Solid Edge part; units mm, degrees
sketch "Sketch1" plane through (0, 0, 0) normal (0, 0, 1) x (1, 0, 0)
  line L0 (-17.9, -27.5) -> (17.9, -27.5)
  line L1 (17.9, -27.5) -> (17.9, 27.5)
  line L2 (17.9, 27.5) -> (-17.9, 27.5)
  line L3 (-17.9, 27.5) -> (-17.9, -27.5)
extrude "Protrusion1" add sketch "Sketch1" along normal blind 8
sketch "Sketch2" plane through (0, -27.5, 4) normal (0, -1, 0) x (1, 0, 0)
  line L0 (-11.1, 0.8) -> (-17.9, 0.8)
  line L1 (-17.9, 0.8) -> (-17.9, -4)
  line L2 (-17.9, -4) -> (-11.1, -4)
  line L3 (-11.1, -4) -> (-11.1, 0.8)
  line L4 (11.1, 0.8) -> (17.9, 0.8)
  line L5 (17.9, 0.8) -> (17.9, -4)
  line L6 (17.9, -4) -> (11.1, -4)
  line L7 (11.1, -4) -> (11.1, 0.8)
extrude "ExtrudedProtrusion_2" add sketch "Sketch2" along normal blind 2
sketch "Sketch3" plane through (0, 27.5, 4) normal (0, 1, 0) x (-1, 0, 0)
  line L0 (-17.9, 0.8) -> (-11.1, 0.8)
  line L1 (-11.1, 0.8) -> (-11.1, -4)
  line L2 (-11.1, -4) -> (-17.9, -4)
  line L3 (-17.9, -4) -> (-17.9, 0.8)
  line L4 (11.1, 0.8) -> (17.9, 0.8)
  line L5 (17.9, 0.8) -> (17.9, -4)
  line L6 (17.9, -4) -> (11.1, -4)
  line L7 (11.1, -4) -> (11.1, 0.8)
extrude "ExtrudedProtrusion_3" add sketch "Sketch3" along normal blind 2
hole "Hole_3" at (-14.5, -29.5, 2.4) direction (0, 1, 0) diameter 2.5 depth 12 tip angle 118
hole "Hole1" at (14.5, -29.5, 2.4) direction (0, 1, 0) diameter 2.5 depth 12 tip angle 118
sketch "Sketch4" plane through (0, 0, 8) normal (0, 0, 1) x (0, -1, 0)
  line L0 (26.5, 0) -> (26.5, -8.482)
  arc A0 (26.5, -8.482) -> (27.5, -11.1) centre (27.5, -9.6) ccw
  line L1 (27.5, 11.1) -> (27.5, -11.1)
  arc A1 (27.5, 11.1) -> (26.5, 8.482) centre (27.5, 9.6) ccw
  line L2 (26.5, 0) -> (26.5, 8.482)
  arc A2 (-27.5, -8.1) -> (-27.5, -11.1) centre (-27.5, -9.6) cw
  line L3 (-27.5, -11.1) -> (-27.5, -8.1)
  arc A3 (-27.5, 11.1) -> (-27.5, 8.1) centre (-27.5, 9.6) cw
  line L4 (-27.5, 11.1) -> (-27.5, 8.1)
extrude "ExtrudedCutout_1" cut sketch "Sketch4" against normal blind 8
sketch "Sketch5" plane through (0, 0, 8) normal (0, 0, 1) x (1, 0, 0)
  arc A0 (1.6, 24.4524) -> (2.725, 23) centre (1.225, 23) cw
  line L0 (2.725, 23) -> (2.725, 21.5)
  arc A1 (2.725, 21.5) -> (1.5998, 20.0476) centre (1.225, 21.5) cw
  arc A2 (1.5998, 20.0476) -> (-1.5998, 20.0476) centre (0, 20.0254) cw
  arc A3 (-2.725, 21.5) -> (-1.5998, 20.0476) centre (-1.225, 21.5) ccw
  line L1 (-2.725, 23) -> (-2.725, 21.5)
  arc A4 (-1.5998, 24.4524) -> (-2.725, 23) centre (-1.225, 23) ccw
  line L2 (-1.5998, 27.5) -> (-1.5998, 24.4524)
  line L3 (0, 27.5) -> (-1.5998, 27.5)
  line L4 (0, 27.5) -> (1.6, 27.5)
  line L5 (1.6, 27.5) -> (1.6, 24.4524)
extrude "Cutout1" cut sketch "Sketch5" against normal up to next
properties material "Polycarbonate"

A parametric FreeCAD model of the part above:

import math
import FreeCAD as App
import Part
import Sketcher
from FreeCAD import Vector
Q = App.Units.Quantity

doc = App.newDocument("Part")
body = doc.addObject("PartDesign::Body", "Body")

# Sketch on XY plane
sketch1 = body.newObject("Sketcher::SketchObject", "Sketch")
sketch1.AttachmentSupport = (doc.getObject("XY_Plane"), [""])
sketch1.MapMode = "FlatFace"
sketch1.addGeometry(Part.LineSegment(Vector(-17.9, 27.5, 0), Vector(-17.9, -27.5, 0)), False)
sketch1.addGeometry(Part.LineSegment(Vector(-17.9, -27.5, 0), Vector(17.9, -27.5, 0)), False)
sketch1.addGeometry(Part.LineSegment(Vector(17.9, -27.5, 0), Vector(17.9, 27.5, 0)), False)
sketch1.addGeometry(Part.LineSegment(Vector(17.9, 27.5, 0), Vector(-17.9, 27.5, 0)), False)
sketch1.addConstraint(Sketcher.Constraint("Coincident", 0, 2, 1, 1))
sketch1.addConstraint(Sketcher.Constraint("Coincident", 1, 2, 2, 1))
sketch1.addConstraint(Sketcher.Constraint("Coincident", 2, 2, 3, 1))
sketch1.addConstraint(Sketcher.Constraint("Coincident", 3, 2, 0, 1))
sketch1.addConstraint(Sketcher.Constraint("Vertical", 0))
sketch1.addConstraint(Sketcher.Constraint("Horizontal", 1))
sketch1.addConstraint(Sketcher.Constraint("Vertical", 2))
sketch1.addConstraint(Sketcher.Constraint("Horizontal", 3))
sketch1.addConstraint(Sketcher.Constraint("Symmetric", 0, 2, 2, 2, -1, 1))
sketch1.addConstraint(Sketcher.Constraint("DistanceY", 0, 2, 0, 1, Q("55 mm")))
sketch1.addConstraint(Sketcher.Constraint("DistanceX", 1, 1, 1, 2, Q("35.8 mm")))
pad1 = body.newObject("PartDesign::Pad", "Pad")
pad1.Profile = sketch1
pad1.Length = 8

# Sketch on XZ plane
sketch2 = body.newObject("Sketcher::SketchObject", "Sketch001")
sketch2.AttachmentSupport = (doc.getObject("XZ_Plane"), [""])
sketch2.MapMode = "FlatFace"
sketch2.AttachmentOffset = App.Placement(Vector(0, 0, 27.5), App.Rotation())
sketch2.addGeometry(Part.LineSegment(Vector(-11.1, 0, 0), Vector(-11.1, 4.8, 0)), False)
sketch2.addGeometry(Part.LineSegment(Vector(-11.1, 4.8, 0), Vector(-17.9, 4.8, 0)), False)
sketch2.addGeometry(Part.LineSegment(Vector(-17.9, 4.8, 0), Vector(-17.9, 0, 0)), False)
sketch2.addGeometry(Part.LineSegment(Vector(-17.9, 0, 0), Vector(-11.1, 0, 0)), False)
sketch2.addGeometry(Part.LineSegment(Vector(17.9, 4.8, 0), Vector(11.1, 4.8, 0)), False)
sketch2.addGeometry(Part.LineSegment(Vector(11.1, 4.8, 0), Vector(11.1, 0, 0)), False)
sketch2.addGeometry(Part.LineSegment(Vector(11.1, 0, 0), Vector(17.9, 0, 0)), False)
sketch2.addGeometry(Part.LineSegment(Vector(17.9, 0, 0), Vector(17.9, 4.8, 0)), False)
sketch2.addConstraint(Sketcher.Constraint("Coincident", 0, 2, 1, 1))
sketch2.addConstraint(Sketcher.Constraint("Coincident", 1, 2, 2, 1))
sketch2.addConstraint(Sketcher.Constraint("Coincident", 2, 2, 3, 1))
sketch2.addConstraint(Sketcher.Constraint("Coincident", 3, 2, 0, 1))
sketch2.addConstraint(Sketcher.Constraint("Coincident", 4, 2, 5, 1))
sketch2.addConstraint(Sketcher.Constraint("Coincident", 5, 2, 6, 1))
sketch2.addConstraint(Sketcher.Constraint("Coincident", 6, 2, 7, 1))
sketch2.addConstraint(Sketcher.Constraint("Coincident", 7, 2, 4, 1))
sketch2.addConstraint(Sketcher.Constraint("Vertical", 0))
sketch2.addConstraint(Sketcher.Constraint("Horizontal", 1))
sketch2.addConstraint(Sketcher.Constraint("Vertical", 2))
sketch2.addConstraint(Sketcher.Constraint("Horizontal", 3))
sketch2.addConstraint(Sketcher.Constraint("Horizontal", 4))
sketch2.addConstraint(Sketcher.Constraint("Vertical", 5))
sketch2.addConstraint(Sketcher.Constraint("Horizontal", 6))
sketch2.addConstraint(Sketcher.Constraint("Vertical", 7))
sketch2.addConstraint(Sketcher.Constraint("Symmetric", 3, 2, 5, 2, -1, 1))
sketch2.addConstraint(Sketcher.Constraint("Symmetric", 2, 2, 6, 2, -2))
sketch2.addConstraint(Sketcher.Constraint("Horizontal", 1, 2, 4, 2))
sketch2.addConstraint(Sketcher.Constraint("DistanceX", 1, 2, 1, 1, Q("6.8 mm")))
sketch2.addConstraint(Sketcher.Constraint("DistanceY", 0, 1, 0, 2, Q("4.8 mm")))
sketch2.addConstraint(Sketcher.Constraint("DistanceX", 1, 2, 4, 2, Q("29 mm")))
pad2 = body.newObject("PartDesign::Pad", "Pad001")
pad2.Profile = sketch2
pad2.Length = 2

# Sketch on XZ plane
sketch3 = body.newObject("Sketcher::SketchObject", "Sketch002")
sketch3.AttachmentSupport = (doc.getObject("XZ_Plane"), [""])
sketch3.MapMode = "FlatFace"
sketch3.AttachmentOffset = App.Placement(Vector(0, 0, -27.5), App.Rotation())
sketch3.addGeometry(Part.LineSegment(Vector(11.1, 4.8, 0), Vector(17.9, 4.8, 0)), False)
sketch3.addGeometry(Part.LineSegment(Vector(17.9, 4.8, 0), Vector(17.9, 0, 0)), False)
sketch3.addGeometry(Part.LineSegment(Vector(17.9, 0, 0), Vector(11.1, 0, 0)), False)
sketch3.addGeometry(Part.LineSegment(Vector(11.1, 0, 0), Vector(11.1, 4.8, 0)), False)
sketch3.addGeometry(Part.LineSegment(Vector(-17.9, 4.8, 0), Vector(-11.1, 4.8, 0)), False)
sketch3.addGeometry(Part.LineSegment(Vector(-11.1, 4.8, 0), Vector(-11.1, 0, 0)), False)
sketch3.addGeometry(Part.LineSegment(Vector(-11.1, 0, 0), Vector(-17.9, 0, 0)), False)
sketch3.addGeometry(Part.LineSegment(Vector(-17.9, 0, 0), Vector(-17.9, 4.8, 0)), False)
sketch3.addConstraint(Sketcher.Constraint("Coincident", 0, 2, 1, 1))
sketch3.addConstraint(Sketcher.Constraint("Coincident", 1, 2, 2, 1))
sketch3.addConstraint(Sketcher.Constraint("Coincident", 2, 2, 3, 1))
sketch3.addConstraint(Sketcher.Constraint("Coincident", 3, 2, 0, 1))
sketch3.addConstraint(Sketcher.Constraint("Coincident", 4, 2, 5, 1))
sketch3.addConstraint(Sketcher.Constraint("Coincident", 5, 2, 6, 1))
sketch3.addConstraint(Sketcher.Constraint("Coincident", 6, 2, 7, 1))
sketch3.addConstraint(Sketcher.Constraint("Coincident", 7, 2, 4, 1))
sketch3.addConstraint(Sketcher.Constraint("Horizontal", 0))
sketch3.addConstraint(Sketcher.Constraint("Vertical", 1))
sketch3.addConstraint(Sketcher.Constraint("Horizontal", 2))
sketch3.addConstraint(Sketcher.Constraint("Vertical", 3))
sketch3.addConstraint(Sketcher.Constraint("Horizontal", 4))
sketch3.addConstraint(Sketcher.Constraint("Vertical", 5))
sketch3.addConstraint(Sketcher.Constraint("Horizontal", 6))
sketch3.addConstraint(Sketcher.Constraint("Vertical", 7))
sketch3.addConstraint(Sketcher.Constraint("Symmetric", 2, 2, 5, 2, -1, 1))
sketch3.addConstraint(Sketcher.Constraint("Symmetric", 1, 2, 6, 2, -2))
sketch3.addConstraint(Sketcher.Constraint("Horizontal", 3, 2, 4, 2))
sketch3.addConstraint(Sketcher.Constraint("DistanceX", 0, 1, 0, 2, Q("6.8 mm")))
sketch3.addConstraint(Sketcher.Constraint("DistanceY", 1, 2, 1, 1, Q("4.8 mm")))
sketch3.addConstraint(Sketcher.Constraint("DistanceX", 4, 2, 0, 2, Q("29 mm")))
pad3 = body.newObject("PartDesign::Pad", "Pad002")
pad3.Profile = sketch3
pad3.Length = 2
pad3.Reversed = True

# Sketch on XZ plane
sketch4 = body.newObject("Sketcher::SketchObject", "Sketch003")
sketch4.AttachmentSupport = (doc.getObject("XZ_Plane"), [""])
sketch4.MapMode = "FlatFace"
sketch4.AttachmentOffset = App.Placement(Vector(0, 0, 29.5), App.Rotation())
sketch4.addGeometry(Part.Circle(Vector(-14.5, 2.4, 0), Vector(0, 0, 1), 1.25), False)
sketch4.addConstraint(Sketcher.Constraint("Diameter", 0, Q("2.5 mm")))
sketch4.addConstraint(Sketcher.Constraint("DistanceX", 0, 3, -1, 1, Q("14.5 mm")))
sketch4.addConstraint(Sketcher.Constraint("DistanceY", -1, 1, 0, 3, Q("2.4 mm")))
doc.recompute()
hole = body.newObject("PartDesign::Hole", "Hole")
hole.Profile = sketch4
hole.ThreadType = "None"
hole.Diameter = 2.5
hole.DepthType = "Dimension"
hole.Depth = 12
hole.DrillPoint = "Angled"
hole.DrillPointAngle = 118

# Sketch on XZ plane
sketch5 = body.newObject("Sketcher::SketchObject", "Sketch004")
sketch5.AttachmentSupport = (doc.getObject("XZ_Plane"), [""])
sketch5.MapMode = "FlatFace"
sketch5.AttachmentOffset = App.Placement(Vector(0, 0, 29.5), App.Rotation())
sketch5.addGeometry(Part.Circle(Vector(14.5, 2.4, 0), Vector(0, 0, 1), 1.25), False)
sketch5.addConstraint(Sketcher.Constraint("Diameter", 0, Q("2.5 mm")))
sketch5.addConstraint(Sketcher.Constraint("DistanceX", -1, 1, 0, 3, Q("14.5 mm")))
sketch5.addConstraint(Sketcher.Constraint("DistanceY", -1, 1, 0, 3, Q("2.4 mm")))
doc.recompute()
hole2 = body.newObject("PartDesign::Hole", "Hole001")
hole2.Profile = sketch5
hole2.ThreadType = "None"
hole2.Diameter = 2.5
hole2.DepthType = "Dimension"
hole2.Depth = 12
hole2.DrillPoint = "Angled"
hole2.DrillPointAngle = 118

# Sketch on XY plane
sketch6 = body.newObject("Sketcher::SketchObject", "Sketch005")
sketch6.AttachmentSupport = (doc.getObject("XY_Plane"), [""])
sketch6.MapMode = "FlatFace"
sketch6.AttachmentOffset = App.Placement(Vector(0, 0, 8), App.Rotation())
sketch6.addGeometry(Part.LineSegment(Vector(8.482, -26.5, 0), Vector(-8.482, -26.5, 0)), False)
sketch6.addGeometry(Part.ArcOfCircle(Part.Circle(Vector(-9.6, -27.5, 0), Vector(0, 0, 1), 1.499975), math.radians(41.81118), math.radians(180)), False)
sketch6.addGeometry(Part.LineSegment(Vector(-11.1, -27.5, 0), Vector(11.1, -27.5, 0)), False)
sketch6.addGeometry(Part.ArcOfCircle(Part.Circle(Vector(9.6, -27.5, 0), Vector(0, 0, 1), 1.5), math.radians(0), math.radians(138.18882)), False)
sketch6.addGeometry(Part.ArcOfCircle(Part.Circle(Vector(-9.6, 27.5, 0), Vector(0, 0, 1), 1.5), math.radians(180), math.radians(360)), False)
sketch6.addGeometry(Part.LineSegment(Vector(-8.1, 27.5, 0), Vector(-11.1, 27.5, 0)), False)
sketch6.addGeometry(Part.ArcOfCircle(Part.Circle(Vector(9.6, 27.5, 0), Vector(0, 0, 1), 1.5), math.radians(180), math.radians(360)), False)
sketch6.addGeometry(Part.LineSegment(Vector(11.1, 27.5, 0), Vector(8.1, 27.5, 0)), False)
sketch6.addConstraint(Sketcher.Constraint("Coincident", 0, 2, 1, 1))
sketch6.addConstraint(Sketcher.Constraint("Coincident", 1, 2, 2, 1))
sketch6.addConstraint(Sketcher.Constraint("Coincident", 2, 2, 3, 1))
sketch6.addConstraint(Sketcher.Constraint("Coincident", 3, 2, 0, 1))
sketch6.addConstraint(Sketcher.Constraint("Coincident", 4, 1, 5, 2))
sketch6.addConstraint(Sketcher.Constraint("Coincident", 5, 1, 4, 2))
sketch6.addConstraint(Sketcher.Constraint("Coincident", 6, 1, 7, 2))
sketch6.addConstraint(Sketcher.Constraint("Coincident", 7, 1, 6, 2))
sketch6.addConstraint(Sketcher.Constraint("Horizontal", 0))
sketch6.addConstraint(Sketcher.Constraint("Horizontal", 2))
sketch6.addConstraint(Sketcher.Constraint("Horizontal", 5))
sketch6.addConstraint(Sketcher.Constraint("Horizontal", 7))
sketch6.addConstraint(Sketcher.Constraint("Equal", 1, 3))
sketch6.addConstraint(Sketcher.Constraint("Equal", 3, 4))
sketch6.addConstraint(Sketcher.Constraint("Equal", 4, 6))
sketch6.addConstraint(Sketcher.Constraint("Symmetric", 3, 3, 4, 3, -1, 1))
sketch6.addConstraint(Sketcher.Constraint("Symmetric", 1, 3, 6, 3, -1, 1))
sketch6.addConstraint(Sketcher.Constraint("Symmetric", 1, 3, 3, 3, -2))
sketch6.addConstraint(Sketcher.Constraint("Horizontal", 3, 3, 1, 2))
sketch6.addConstraint(Sketcher.Constraint("Horizontal", 6, 3, 4, 1))
sketch6.addConstraint(Sketcher.Constraint("Horizontal", 5, 1, 6, 1))
sketch6.addConstraint(Sketcher.Constraint("Radius", 1, Q("1.5 mm")))
sketch6.addConstraint(Sketcher.Constraint("DistanceX", 2, 1, 2, 2, Q("22.2 mm")))
sketch6.addConstraint(Sketcher.Constraint("DistanceY", 1, 3, 4, 3, Q("55 mm")))
sketch6.addConstraint(Sketcher.Constraint("DistanceY", 1, 3, 0, 2, Q("1 mm")))
pocket1 = body.newObject("PartDesign::Pocket", "Pocket")
pocket1.Profile = sketch6
pocket1.Length = 8

# Sketch on XY plane
sketch7 = body.newObject("Sketcher::SketchObject", "Sketch006")
sketch7.AttachmentSupport = (doc.getObject("XY_Plane"), [""])
sketch7.MapMode = "FlatFace"
sketch7.AttachmentOffset = App.Placement(Vector(0, 0, 8), App.Rotation())
sketch7.addGeometry(Part.ArcOfCircle(Part.Circle(Vector(1.225, 23, 0), Vector(0, 0, 1), 1.50003), math.radians(0), math.radians(75.522786)), False)
sketch7.addGeometry(Part.LineSegment(Vector(1.6, 24.4524, 0), Vector(1.6, 27.5, 0)), False)
sketch7.addGeometry(Part.LineSegment(Vector(1.6, 27.5, 0), Vector(-1.5998, 27.5, 0)), False)
sketch7.addGeometry(Part.LineSegment(Vector(-1.5998, 27.5, 0), Vector(-1.5998, 24.4524, 0)), False)
sketch7.addGeometry(Part.ArcOfCircle(Part.Circle(Vector(-1.225, 23, 0), Vector(0, 0, 1), 1.49998), math.radians(104.469817), math.radians(180)), False)
sketch7.addGeometry(Part.LineSegment(Vector(-2.725, 23, 0), Vector(-2.725, 21.5, 0)), False)
sketch7.addGeometry(Part.ArcOfCircle(Part.Circle(Vector(-1.225, 21.5, 0), Vector(0, 0, 1), 1.5), math.radians(180), math.radians(255.530183)), False)
sketch7.addGeometry(Part.ArcOfCircle(Part.Circle(Vector(0, 20.0254, 0), Vector(0, 0, 1), 1.599954), math.radians(179.204973), math.radians(360.795027)), False)
sketch7.addGeometry(Part.ArcOfCircle(Part.Circle(Vector(1.225, 21.5, 0), Vector(0, 0, 1), 1.5), math.radians(-75.530183), math.radians(0)), False)
sketch7.addGeometry(Part.LineSegment(Vector(2.725, 21.5, 0), Vector(2.725, 23, 0)), False)
sketch7.addConstraint(Sketcher.Constraint("Coincident", 0, 2, 1, 1))
sketch7.addConstraint(Sketcher.Constraint("Coincident", 1, 2, 2, 1))
sketch7.addConstraint(Sketcher.Constraint("Coincident", 2, 2, 3, 1))
sketch7.addConstraint(Sketcher.Constraint("Coincident", 3, 2, 4, 1))
sketch7.addConstraint(Sketcher.Constraint("Coincident", 4, 2, 5, 1))
sketch7.addConstraint(Sketcher.Constraint("Coincident", 5, 2, 6, 1))
sketch7.addConstraint(Sketcher.Constraint("Coincident", 6, 2, 7, 1))
sketch7.addConstraint(Sketcher.Constraint("Coincident", 7, 2, 8, 1))
sketch7.addConstraint(Sketcher.Constraint("Coincident", 8, 2, 9, 1))
sketch7.addConstraint(Sketcher.Constraint("Coincident", 9, 2, 0, 1))
sketch7.addConstraint(Sketcher.Constraint("Vertical", 1))
sketch7.addConstraint(Sketcher.Constraint("Horizontal", 2))
sketch7.addConstraint(Sketcher.Constraint("Vertical", 3))
sketch7.addConstraint(Sketcher.Constraint("Vertical", 5))
sketch7.addConstraint(Sketcher.Constraint("Vertical", 9))
sketch7.addConstraint(Sketcher.Constraint("PointOnObject", 7, 3, -2))
sketch7.addConstraint(Sketcher.Constraint("Radius", 0, Q("1.5 mm")))
sketch7.addConstraint(Sketcher.Constraint("Radius", 4, Q("1.5 mm")))
sketch7.addConstraint(Sketcher.Constraint("Radius", 6, Q("1.5 mm")))
sketch7.addConstraint(Sketcher.Constraint("Radius", 7, Q("1.6 mm")))
sketch7.addConstraint(Sketcher.Constraint("Radius", 8, Q("1.5 mm")))
sketch7.addConstraint(Sketcher.Constraint("DistanceY", 5, 2, 5, 1, Q("1.5 mm")))
sketch7.addConstraint(Sketcher.Constraint("DistanceY", 9, 1, 9, 2, Q("1.5 mm")))
sketch7.addConstraint(Sketcher.Constraint("DistanceY", -1, 1, 0, 3, Q("23 mm")))
sketch7.addConstraint(Sketcher.Constraint("DistanceY", -1, 1, 4, 3, Q("23 mm")))
sketch7.addConstraint(Sketcher.Constraint("DistanceY", -1, 1, 4, 2, Q("23 mm")))
sketch7.addConstraint(Sketcher.Constraint("DistanceY", -1, 1, 9, 2, Q("23 mm")))
sketch7.addConstraint(Sketcher.Constraint("DistanceY", 8, 3, 1, 2, Q("6 mm")))
sketch7.addConstraint(Sketcher.Constraint("DistanceY", 6, 3, 1, 2, Q("6 mm")))
sketch7.addConstraint(Sketcher.Constraint("DistanceY", -1, 1, 6, 3, Q("21.5 mm")))
sketch7.addConstraint(Sketcher.Constraint("DistanceX", -1, 1, 0, 2, Q("1.6 mm")))
sketch7.addConstraint(Sketcher.Constraint("DistanceX", 4, 3, 0, 3, Q("2.45 mm")))
sketch7.addConstraint(Sketcher.Constraint("DistanceX", 2, 2, 2, 1, Q("3.1998 mm")))
sketch7.addConstraint(Sketcher.Constraint("DistanceY", 1, 1, 1, 2, Q("3.0476 mm")))
sketch7.addConstraint(Sketcher.Constraint("DistanceY", 7, 3, 0, 2, Q("4.427 mm")))
pocket2 = body.newObject("PartDesign::Pocket", "Pocket001")
pocket2.Profile = sketch7
pocket2.Type = "UpToFirst"

doc.recompute()
